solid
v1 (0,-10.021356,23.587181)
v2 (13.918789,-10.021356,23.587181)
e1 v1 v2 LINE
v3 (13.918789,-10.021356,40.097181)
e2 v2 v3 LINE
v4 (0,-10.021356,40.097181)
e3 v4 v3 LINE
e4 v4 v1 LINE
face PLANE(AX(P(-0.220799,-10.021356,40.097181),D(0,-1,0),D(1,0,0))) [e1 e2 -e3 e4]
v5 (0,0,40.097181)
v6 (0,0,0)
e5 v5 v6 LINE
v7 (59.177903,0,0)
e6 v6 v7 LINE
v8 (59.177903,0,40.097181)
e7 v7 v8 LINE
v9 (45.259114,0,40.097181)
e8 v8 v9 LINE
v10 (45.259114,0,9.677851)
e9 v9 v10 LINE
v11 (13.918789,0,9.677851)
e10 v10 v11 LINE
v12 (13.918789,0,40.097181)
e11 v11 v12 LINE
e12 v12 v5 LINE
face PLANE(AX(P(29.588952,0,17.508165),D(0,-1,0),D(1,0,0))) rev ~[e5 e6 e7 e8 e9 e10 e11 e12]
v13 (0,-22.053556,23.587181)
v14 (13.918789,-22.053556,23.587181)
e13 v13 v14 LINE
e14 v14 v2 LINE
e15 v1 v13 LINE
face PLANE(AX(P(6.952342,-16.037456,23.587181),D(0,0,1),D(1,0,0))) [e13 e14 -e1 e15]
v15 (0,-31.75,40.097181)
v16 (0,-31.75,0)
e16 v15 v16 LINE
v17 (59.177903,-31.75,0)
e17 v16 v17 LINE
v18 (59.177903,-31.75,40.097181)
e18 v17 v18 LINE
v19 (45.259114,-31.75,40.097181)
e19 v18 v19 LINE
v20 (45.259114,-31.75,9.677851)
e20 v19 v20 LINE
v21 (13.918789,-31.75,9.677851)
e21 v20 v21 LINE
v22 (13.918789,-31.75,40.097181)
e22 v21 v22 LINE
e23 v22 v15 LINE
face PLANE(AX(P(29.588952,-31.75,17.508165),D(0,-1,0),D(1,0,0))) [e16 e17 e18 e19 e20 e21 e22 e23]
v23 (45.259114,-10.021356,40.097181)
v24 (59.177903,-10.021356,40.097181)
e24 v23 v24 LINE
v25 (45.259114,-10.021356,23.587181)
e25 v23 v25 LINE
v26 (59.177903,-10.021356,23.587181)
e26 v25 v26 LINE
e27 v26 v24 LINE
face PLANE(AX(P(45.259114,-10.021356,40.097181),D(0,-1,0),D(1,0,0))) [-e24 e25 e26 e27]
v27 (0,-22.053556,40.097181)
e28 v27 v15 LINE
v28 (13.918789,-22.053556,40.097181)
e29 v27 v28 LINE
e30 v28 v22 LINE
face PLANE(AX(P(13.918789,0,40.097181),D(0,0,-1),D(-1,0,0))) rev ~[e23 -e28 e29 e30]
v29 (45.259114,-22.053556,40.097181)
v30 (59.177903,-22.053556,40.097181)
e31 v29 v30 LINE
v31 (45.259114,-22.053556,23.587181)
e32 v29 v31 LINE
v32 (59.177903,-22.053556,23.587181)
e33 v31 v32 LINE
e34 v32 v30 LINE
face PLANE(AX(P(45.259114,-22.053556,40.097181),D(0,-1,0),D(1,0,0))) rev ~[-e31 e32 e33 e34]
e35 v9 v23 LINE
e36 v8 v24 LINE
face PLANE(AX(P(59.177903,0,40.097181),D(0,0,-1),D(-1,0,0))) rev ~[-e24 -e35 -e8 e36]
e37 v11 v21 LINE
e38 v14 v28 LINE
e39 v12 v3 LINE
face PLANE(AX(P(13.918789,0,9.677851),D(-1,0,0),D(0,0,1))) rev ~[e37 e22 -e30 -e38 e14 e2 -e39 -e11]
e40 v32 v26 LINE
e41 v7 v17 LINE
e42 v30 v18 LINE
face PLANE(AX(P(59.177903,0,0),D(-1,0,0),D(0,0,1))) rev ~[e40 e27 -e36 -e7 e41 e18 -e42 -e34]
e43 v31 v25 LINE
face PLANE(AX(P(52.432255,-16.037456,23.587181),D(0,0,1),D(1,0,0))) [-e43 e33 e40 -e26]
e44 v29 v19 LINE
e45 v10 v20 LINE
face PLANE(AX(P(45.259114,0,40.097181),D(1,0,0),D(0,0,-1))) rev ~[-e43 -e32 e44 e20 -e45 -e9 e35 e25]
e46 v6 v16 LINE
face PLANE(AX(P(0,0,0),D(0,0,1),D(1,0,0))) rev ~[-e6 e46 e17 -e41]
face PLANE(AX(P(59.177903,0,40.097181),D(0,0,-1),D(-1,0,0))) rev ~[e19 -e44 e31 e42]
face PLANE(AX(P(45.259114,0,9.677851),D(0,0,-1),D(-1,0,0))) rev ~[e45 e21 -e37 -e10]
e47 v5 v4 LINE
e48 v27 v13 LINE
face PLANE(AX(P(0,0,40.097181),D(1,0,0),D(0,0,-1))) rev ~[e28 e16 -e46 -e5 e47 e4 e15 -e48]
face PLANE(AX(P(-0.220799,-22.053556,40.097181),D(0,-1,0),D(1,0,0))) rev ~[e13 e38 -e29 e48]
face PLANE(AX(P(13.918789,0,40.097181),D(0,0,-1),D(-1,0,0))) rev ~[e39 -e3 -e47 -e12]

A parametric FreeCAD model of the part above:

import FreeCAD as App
import Part
import Sketcher
Q = App.Units.Quantity

doc = App.newDocument("Part")
body = doc.addObject("PartDesign::Body", "Body")

sketch1 = body.newObject("Sketcher::SketchObject", "Sketch")
sketch1.AttachmentSupport = (doc.getObject("XZ_Plane"), [""])
sketch1.MapMode = "FlatFace"
sketch1.addGeometry([
    Part.LineSegment(App.Vector(0, 40, 0), App.Vector(0, 0, 0)),
    Part.LineSegment(App.Vector(0, 0, 0), App.Vector(59, 0, 0)),
    Part.LineSegment(App.Vector(59, 0, 0), App.Vector(59, 40, 0)),
    Part.LineSegment(App.Vector(59, 40, 0), App.Vector(45, 40, 0)),
    Part.LineSegment(App.Vector(45, 40, 0), App.Vector(45, 10, 0)),
    Part.LineSegment(App.Vector(45, 10, 0), App.Vector(14, 10, 0)),
    Part.LineSegment(App.Vector(14, 10, 0), App.Vector(14, 40, 0)),
    Part.LineSegment(App.Vector(14, 40, 0), App.Vector(0, 40, 0)),
], False)
sketch1.addConstraint([
    Sketcher.Constraint("Coincident", 0, 2, 1, 1),
    Sketcher.Constraint("Coincident", 1, 2, 2, 1),
    Sketcher.Constraint("Coincident", 2, 2, 3, 1),
    Sketcher.Constraint("Coincident", 3, 2, 4, 1),
    Sketcher.Constraint("Coincident", 4, 2, 5, 1),
    Sketcher.Constraint("Coincident", 5, 2, 6, 1),
    Sketcher.Constraint("Coincident", 6, 2, 7, 1),
    Sketcher.Constraint("Coincident", 7, 2, 0, 1),
    Sketcher.Constraint("Vertical", 0),
    Sketcher.Constraint("Horizontal", 1),
    Sketcher.Constraint("Vertical", 2),
    Sketcher.Constraint("Horizontal", 3),
    Sketcher.Constraint("Vertical", 4),
    Sketcher.Constraint("Horizontal", 5),
    Sketcher.Constraint("Vertical", 6),
    Sketcher.Constraint("Horizontal", 7),
    Sketcher.Constraint("Coincident", 0, 2, -1, 1),
    Sketcher.Constraint("Horizontal", 3, 2, 6, 2),
    Sketcher.Constraint("Equal", 3, 7),
    Sketcher.Constraint("DistanceX", 3, 2, 3, 1, Q("13.918789 mm")),
    Sketcher.Constraint("DistanceY", 0, 2, 0, 1, Q("40.097181 mm")),
    Sketcher.Constraint("DistanceY", 4, 2, 4, 1, Q("30.41933 mm")),
    Sketcher.Constraint("DistanceX", 1, 1, 1, 2, Q("59.177903 mm")),
])
pad1 = body.newObject("PartDesign::Pad", "Pad")
pad1.Profile = sketch1
pad1.Length = Q("1.25 in")

sketch2 = body.newObject("Sketcher::SketchObject", "Sketch001")
sketch2.AttachmentSupport = (doc.getObject("XY_Plane"), [""])
sketch2.MapMode = "FlatFace"
sketch2.AttachmentOffset = App.Placement(App.Vector(0, 0, 40.097181), App.Rotation())
sketch2.addGeometry([
    Part.LineSegment(App.Vector(45, -10, 0), App.Vector(45, -22, 0)),
    Part.LineSegment(App.Vector(45, -22, 0), App.Vector(60, -22, 0)),
    Part.LineSegment(App.Vector(60, -22, 0), App.Vector(60, -10, 0)),
    Part.LineSegment(App.Vector(60, -10, 0), App.Vector(45, -10, 0)),
    Part.LineSegment(App.Vector(0, -10, 0), App.Vector(0, -22, 0)),
    Part.LineSegment(App.Vector(0, -22, 0), App.Vector(14, -22, 0)),
    Part.LineSegment(App.Vector(14, -22, 0), App.Vector(14, -10, 0)),
    Part.LineSegment(App.Vector(14, -10, 0), App.Vector(0, -10, 0)),
], False)
sketch2.addConstraint([
    Sketcher.Constraint("Coincident", 0, 2, 1, 1),
    Sketcher.Constraint("Coincident", 1, 2, 2, 1),
    Sketcher.Constraint("Coincident", 2, 2, 3, 1),
    Sketcher.Constraint("Coincident", 3, 2, 0, 1),
    Sketcher.Constraint("Coincident", 4, 2, 5, 1),
    Sketcher.Constraint("Coincident", 5, 2, 6, 1),
    Sketcher.Constraint("Coincident", 6, 2, 7, 1),
    Sketcher.Constraint("Coincident", 7, 2, 4, 1),
    Sketcher.Constraint("Vertical", 0),
    Sketcher.Constraint("Horizontal", 1),
    Sketcher.Constraint("Vertical", 2),
    Sketcher.Constraint("Horizontal", 3),
    Sketcher.Constraint("Vertical", 4),
    Sketcher.Constraint("Horizontal", 5),
    Sketcher.Constraint("Vertical", 6),
    Sketcher.Constraint("Horizontal", 7),
    Sketcher.Constraint("Horizontal", 1, 2, 4, 2),
    Sketcher.Constraint("Horizontal", 3, 2, 6, 2),
    Sketcher.Constraint("Equal", 3, 5),
    Sketcher.Constraint("DistanceY", 0, 2, 0, 1, Q("12.032199 mm")),
    Sketcher.Constraint("DistanceX", 5, 1, 5, 2, Q("14.346281 mm")),
    Sketcher.Constraint("DistanceX", 4, 2, -1, 1, Q("0.220799 mm")),
    Sketcher.Constraint("DistanceX", 5, 2, 0, 2, Q("31.133631 mm")),
    Sketcher.Constraint("DistanceY", 0, 2, -1, 1, Q("22.053556 mm")),
])
pocket1 = body.newObject("PartDesign::Pocket", "Pocket")
pocket1.Profile = sketch2
pocket1.Length = Q("0.65 in")

doc.recompute()
